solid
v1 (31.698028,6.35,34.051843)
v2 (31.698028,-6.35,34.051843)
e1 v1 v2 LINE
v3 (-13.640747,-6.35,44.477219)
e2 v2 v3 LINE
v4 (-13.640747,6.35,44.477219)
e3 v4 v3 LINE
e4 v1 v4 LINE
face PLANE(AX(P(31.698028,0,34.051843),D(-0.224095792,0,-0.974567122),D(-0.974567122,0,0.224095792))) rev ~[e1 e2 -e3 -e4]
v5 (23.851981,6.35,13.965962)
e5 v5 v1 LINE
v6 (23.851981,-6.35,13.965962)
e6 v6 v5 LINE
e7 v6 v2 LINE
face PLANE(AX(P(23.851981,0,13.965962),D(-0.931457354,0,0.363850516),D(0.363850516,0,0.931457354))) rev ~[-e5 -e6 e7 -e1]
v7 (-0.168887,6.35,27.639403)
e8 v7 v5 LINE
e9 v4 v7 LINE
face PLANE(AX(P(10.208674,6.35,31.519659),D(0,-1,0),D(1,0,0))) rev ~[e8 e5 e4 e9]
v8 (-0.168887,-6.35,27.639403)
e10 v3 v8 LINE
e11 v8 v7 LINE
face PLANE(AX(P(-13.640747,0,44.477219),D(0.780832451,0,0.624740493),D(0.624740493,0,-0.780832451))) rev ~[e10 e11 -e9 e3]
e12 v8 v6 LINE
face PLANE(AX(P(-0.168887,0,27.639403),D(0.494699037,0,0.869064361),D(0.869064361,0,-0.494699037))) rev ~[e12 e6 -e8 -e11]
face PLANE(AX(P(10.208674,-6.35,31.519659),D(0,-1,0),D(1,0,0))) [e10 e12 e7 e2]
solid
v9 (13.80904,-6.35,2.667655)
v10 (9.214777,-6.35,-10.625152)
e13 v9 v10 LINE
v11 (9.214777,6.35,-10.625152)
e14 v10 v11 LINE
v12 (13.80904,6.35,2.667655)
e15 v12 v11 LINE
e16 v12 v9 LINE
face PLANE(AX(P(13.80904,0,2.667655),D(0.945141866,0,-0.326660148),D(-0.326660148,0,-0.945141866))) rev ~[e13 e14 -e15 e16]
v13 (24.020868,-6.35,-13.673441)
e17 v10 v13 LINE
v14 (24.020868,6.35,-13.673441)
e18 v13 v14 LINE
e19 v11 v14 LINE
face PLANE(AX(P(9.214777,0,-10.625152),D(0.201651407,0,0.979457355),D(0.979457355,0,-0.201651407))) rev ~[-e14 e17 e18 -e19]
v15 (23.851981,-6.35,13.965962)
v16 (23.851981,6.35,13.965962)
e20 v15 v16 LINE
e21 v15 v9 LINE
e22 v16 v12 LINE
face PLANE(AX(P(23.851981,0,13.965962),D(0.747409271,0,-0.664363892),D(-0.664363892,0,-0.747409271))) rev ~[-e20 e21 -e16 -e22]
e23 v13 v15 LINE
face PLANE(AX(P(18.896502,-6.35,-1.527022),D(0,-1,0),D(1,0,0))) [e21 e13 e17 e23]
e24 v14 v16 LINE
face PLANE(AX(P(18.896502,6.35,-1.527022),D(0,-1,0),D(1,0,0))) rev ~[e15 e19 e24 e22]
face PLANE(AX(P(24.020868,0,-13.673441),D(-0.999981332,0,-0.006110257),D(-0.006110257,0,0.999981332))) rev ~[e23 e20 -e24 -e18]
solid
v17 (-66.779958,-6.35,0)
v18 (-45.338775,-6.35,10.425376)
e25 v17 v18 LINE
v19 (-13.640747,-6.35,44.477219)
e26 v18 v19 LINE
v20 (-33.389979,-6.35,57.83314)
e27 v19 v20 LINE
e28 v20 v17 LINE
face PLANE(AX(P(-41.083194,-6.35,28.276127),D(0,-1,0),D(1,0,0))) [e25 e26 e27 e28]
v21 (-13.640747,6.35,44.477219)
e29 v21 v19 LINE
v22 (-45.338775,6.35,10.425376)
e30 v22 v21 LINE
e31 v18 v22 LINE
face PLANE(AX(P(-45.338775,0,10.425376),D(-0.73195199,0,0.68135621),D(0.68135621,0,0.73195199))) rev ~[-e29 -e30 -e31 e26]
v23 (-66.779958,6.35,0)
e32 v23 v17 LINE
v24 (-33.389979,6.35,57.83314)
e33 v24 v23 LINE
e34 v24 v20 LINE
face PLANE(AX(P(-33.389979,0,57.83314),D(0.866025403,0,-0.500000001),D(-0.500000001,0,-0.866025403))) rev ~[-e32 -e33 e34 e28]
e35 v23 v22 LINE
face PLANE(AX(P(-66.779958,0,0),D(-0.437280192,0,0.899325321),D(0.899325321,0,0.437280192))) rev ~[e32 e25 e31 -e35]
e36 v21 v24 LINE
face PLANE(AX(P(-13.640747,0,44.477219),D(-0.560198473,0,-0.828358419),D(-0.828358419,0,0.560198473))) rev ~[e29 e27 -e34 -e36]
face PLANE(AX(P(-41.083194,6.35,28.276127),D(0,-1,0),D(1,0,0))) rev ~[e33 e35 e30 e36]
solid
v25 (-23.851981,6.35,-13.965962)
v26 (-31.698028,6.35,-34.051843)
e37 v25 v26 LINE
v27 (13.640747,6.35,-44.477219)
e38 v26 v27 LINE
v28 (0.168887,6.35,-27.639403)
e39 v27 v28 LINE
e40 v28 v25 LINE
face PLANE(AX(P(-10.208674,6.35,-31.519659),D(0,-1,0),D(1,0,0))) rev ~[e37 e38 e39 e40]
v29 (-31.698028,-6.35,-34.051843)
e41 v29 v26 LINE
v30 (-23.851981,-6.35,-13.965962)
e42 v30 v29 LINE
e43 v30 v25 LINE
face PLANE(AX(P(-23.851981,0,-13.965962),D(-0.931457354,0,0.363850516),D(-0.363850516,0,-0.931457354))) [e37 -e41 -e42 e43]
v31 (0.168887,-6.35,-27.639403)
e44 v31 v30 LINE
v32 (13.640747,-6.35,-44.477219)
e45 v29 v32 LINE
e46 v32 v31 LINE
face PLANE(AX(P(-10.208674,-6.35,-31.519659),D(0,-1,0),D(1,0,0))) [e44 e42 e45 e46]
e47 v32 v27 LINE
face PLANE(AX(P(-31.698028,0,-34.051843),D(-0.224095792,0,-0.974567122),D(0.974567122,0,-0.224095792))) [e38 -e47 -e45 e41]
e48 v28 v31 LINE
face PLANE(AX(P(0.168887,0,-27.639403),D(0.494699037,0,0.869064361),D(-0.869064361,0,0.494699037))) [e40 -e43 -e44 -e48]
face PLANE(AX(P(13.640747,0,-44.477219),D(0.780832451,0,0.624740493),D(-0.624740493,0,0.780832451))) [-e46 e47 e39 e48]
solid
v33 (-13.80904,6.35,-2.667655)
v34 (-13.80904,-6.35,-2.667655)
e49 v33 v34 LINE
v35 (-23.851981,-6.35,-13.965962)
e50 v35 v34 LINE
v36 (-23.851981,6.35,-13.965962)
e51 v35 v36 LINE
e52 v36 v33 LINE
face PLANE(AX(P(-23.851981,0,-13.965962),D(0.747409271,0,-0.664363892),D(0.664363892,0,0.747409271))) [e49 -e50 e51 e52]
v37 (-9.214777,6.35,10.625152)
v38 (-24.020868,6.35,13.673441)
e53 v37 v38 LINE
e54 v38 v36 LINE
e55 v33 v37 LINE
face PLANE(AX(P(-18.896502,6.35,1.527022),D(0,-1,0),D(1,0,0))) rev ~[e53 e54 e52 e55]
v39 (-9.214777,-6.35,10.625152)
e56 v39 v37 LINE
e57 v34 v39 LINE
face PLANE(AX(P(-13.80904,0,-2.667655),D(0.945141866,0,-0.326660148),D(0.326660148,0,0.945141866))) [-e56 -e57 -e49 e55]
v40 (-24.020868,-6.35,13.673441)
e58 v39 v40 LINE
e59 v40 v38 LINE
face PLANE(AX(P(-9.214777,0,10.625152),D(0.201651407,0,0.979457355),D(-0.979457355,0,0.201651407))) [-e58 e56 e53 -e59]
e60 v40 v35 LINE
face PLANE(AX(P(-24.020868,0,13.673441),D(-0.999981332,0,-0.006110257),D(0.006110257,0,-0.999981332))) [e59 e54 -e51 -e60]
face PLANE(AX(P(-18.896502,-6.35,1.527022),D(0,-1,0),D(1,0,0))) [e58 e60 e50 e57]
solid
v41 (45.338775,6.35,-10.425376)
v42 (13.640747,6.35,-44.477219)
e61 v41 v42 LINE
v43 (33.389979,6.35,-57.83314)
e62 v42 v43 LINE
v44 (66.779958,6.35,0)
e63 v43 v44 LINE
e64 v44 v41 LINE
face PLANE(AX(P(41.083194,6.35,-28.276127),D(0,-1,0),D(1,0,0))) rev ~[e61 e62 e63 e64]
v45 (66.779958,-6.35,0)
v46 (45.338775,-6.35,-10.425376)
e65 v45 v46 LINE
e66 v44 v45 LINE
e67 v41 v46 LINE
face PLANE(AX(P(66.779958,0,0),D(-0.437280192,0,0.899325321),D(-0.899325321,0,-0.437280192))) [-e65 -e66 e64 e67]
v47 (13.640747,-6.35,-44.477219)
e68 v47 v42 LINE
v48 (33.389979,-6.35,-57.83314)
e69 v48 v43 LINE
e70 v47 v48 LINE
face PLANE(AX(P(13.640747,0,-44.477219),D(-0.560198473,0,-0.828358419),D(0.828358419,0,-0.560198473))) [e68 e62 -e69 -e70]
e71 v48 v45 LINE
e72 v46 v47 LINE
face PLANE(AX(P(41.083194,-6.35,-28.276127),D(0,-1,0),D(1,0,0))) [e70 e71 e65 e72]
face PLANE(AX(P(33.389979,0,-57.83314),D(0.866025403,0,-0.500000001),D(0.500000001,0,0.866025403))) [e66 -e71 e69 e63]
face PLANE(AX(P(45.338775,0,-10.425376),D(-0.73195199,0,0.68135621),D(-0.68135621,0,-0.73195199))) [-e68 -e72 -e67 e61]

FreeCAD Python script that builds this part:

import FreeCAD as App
import Part
import Sketcher

V = App.Vector
Q = App.Units.Quantity

doc = App.newDocument("Part")
body = doc.addObject("PartDesign::Body", "Body")
body.AllowCompound = True

# Sketch on XZ plane
sketch1 = body.newObject("Sketcher::SketchObject", "Sketch")
sketch1.AttachmentSupport = (doc.getObject("XZ_Plane"), [""])
sketch1.MapMode = "FlatFace"
sketch1.addGeometry([
    Part.LineSegment(V(24, 14, 0), V(32, 34, 0)),  # 0
    Part.LineSegment(V(32, 34, 0), V(-14, 44, 0)),  # 1
    Part.LineSegment(V(-14, 44, 0), V(0, 28, 0)),  # 2
    Part.LineSegment(V(0, 28, 0), V(24, 14, 0)),  # 3
    Part.LineSegment(V(9, -11, 0), V(24, -14, 0)),  # 4
    Part.LineSegment(V(24, -14, 0), V(24, 14, 0)),  # 5
    Part.LineSegment(V(24, 14, 0), V(14, 3, 0)),  # 6
    Part.LineSegment(V(14, 3, 0), V(9, -11, 0)),  # 7
    Part.LineSegment(V(-24, 14, 0), V(-24, -14, 0)),  # 8
    Part.LineSegment(V(-24, -14, 0), V(-14, -3, 0)),  # 9
    Part.LineSegment(V(-14, -3, 0), V(-9, 11, 0)),  # 10
    Part.LineSegment(V(-9, 11, 0), V(-24, 14, 0)),  # 11
    Part.LineSegment(V(-32, -34, 0), V(14, -44, 0)),  # 12
    Part.LineSegment(V(14, -44, 0), V(0, -28, 0)),  # 13
    Part.LineSegment(V(0, -28, 0), V(-24, -14, 0)),  # 14
    Part.LineSegment(V(-24, -14, 0), V(-32, -34, 0)),  # 15
    Part.LineSegment(V(-14, 44, 0), V(-33, 58, 0)),  # 16
    Part.LineSegment(V(-33, 58, 0), V(-67, 0, 0)),  # 17
    Part.LineSegment(V(-67, 0, 0), V(-45, 10, 0)),  # 18
    Part.LineSegment(V(-45, 10, 0), V(-14, 44, 0)),  # 19
    Part.LineSegment(V(33, -58, 0), V(67, 0, 0)),  # 20
    Part.LineSegment(V(67, 0, 0), V(45, -10, 0)),  # 21
    Part.LineSegment(V(45, -10, 0), V(14, -44, 0)),  # 22
    Part.LineSegment(V(14, -44, 0), V(33, -58, 0)),  # 23
], False)
sketch1.addConstraint([
    Sketcher.Constraint("Coincident", 0, 2, 1, 1),
    Sketcher.Constraint("Coincident", 1, 2, 2, 1),
    Sketcher.Constraint("Coincident", 2, 2, 3, 1),
    Sketcher.Constraint("Coincident", 3, 2, 0, 1),
    Sketcher.Constraint("Coincident", 4, 2, 5, 1),
    Sketcher.Constraint("Coincident", 5, 2, 6, 1),
    Sketcher.Constraint("Coincident", 6, 2, 7, 1),
    Sketcher.Constraint("Coincident", 7, 2, 4, 1),
    Sketcher.Constraint("Coincident", 8, 2, 9, 1),
    Sketcher.Constraint("Coincident", 9, 2, 10, 1),
    Sketcher.Constraint("Coincident", 10, 2, 11, 1),
    Sketcher.Constraint("Coincident", 11, 2, 8, 1),
    Sketcher.Constraint("Coincident", 12, 2, 13, 1),
    Sketcher.Constraint("Coincident", 13, 2, 14, 1),
    Sketcher.Constraint("Coincident", 14, 2, 15, 1),
    Sketcher.Constraint("Coincident", 15, 2, 12, 1),
    Sketcher.Constraint("Coincident", 16, 2, 17, 1),
    Sketcher.Constraint("Coincident", 17, 2, 18, 1),
    Sketcher.Constraint("Coincident", 18, 2, 19, 1),
    Sketcher.Constraint("Coincident", 19, 2, 16, 1),
    Sketcher.Constraint("Coincident", 20, 2, 21, 1),
    Sketcher.Constraint("Coincident", 21, 2, 22, 1),
    Sketcher.Constraint("Coincident", 22, 2, 23, 1),
    Sketcher.Constraint("Coincident", 23, 2, 20, 1),
    Sketcher.Constraint("Coincident", 5, 2, 3, 2),
    Sketcher.Constraint("Coincident", 14, 2, 8, 2),
    Sketcher.Constraint("Coincident", 19, 2, 1, 2),
    Sketcher.Constraint("Coincident", 22, 2, 12, 2),
    Sketcher.Constraint("Symmetric", 3, 2, 8, 2, -1, 1),
    Sketcher.Constraint("Symmetric", 6, 2, 9, 2, -1, 1),
    Sketcher.Constraint("Symmetric", 7, 2, 10, 2, -1, 1),
    Sketcher.Constraint("Symmetric", 4, 2, 11, 2, -1, 1),
    Sketcher.Constraint("Symmetric", 1, 2, 12, 2, -1, 1),
    Sketcher.Constraint("Symmetric", 2, 2, 13, 2, -1, 1),
    Sketcher.Constraint("Symmetric", 0, 2, 15, 2, -1, 1),
    Sketcher.Constraint("Symmetric", 17, 2, 20, 2, -1, 1),
    Sketcher.Constraint("Symmetric", 18, 2, 21, 2, -1, 1),
    Sketcher.Constraint("Symmetric", 16, 2, 23, 2, -1, 1),
    Sketcher.Constraint("PointOnObject", 17, 2, -1),
    Sketcher.Constraint("Equal", 0, 2),
    Sketcher.Constraint("Equal", 3, 5),
    Sketcher.Constraint("Equal", 4, 6),
    Sketcher.Constraint("Equal", 16, 18),
    Sketcher.Constraint("Equal", 12, 19),
    Sketcher.Constraint("Angle", 17, Q("-120 deg")),
    Sketcher.Constraint("DistanceY", 11, 2, 16, 2, Q("44.159699 mm")),
    Sketcher.Constraint("DistanceX", 16, 2, 10, 2, Q("24.175202 mm")),
    Sketcher.Constraint("Distance", 0, Q("21.56393 mm")),
    Sketcher.Constraint("Distance", 3, Q("27.639918 mm")),
    Sketcher.Constraint("Distance", 7, Q("14.064351 mm")),
    Sketcher.Constraint("Distance", 16, Q("23.841409 mm")),
    Sketcher.Constraint("DistanceX", -1, 1, 0, 2, Q("31.698028 mm")),
    Sketcher.Constraint("DistanceY", -1, 1, 1, 2, Q("44.477219 mm")),
    Sketcher.Constraint("DistanceX", -1, 1, 3, 2, Q("23.851981 mm")),
    Sketcher.Constraint("DistanceY", -1, 1, 3, 2, Q("13.965962 mm")),
    Sketcher.Constraint("DistanceX", -1, 1, 4, 2, Q("24.020868 mm")),
    Sketcher.Constraint("DistanceX", -1, 1, 6, 2, Q("13.80904 mm")),
    Sketcher.Constraint("DistanceX", 16, 2, -1, 1, Q("33.389979 mm")),
])
pad1 = body.newObject("PartDesign::Pad", "Pad")
pad1.Profile = sketch1
pad1.Length = Q("0.5 in")
pad1.Midplane = True

doc.recompute()
